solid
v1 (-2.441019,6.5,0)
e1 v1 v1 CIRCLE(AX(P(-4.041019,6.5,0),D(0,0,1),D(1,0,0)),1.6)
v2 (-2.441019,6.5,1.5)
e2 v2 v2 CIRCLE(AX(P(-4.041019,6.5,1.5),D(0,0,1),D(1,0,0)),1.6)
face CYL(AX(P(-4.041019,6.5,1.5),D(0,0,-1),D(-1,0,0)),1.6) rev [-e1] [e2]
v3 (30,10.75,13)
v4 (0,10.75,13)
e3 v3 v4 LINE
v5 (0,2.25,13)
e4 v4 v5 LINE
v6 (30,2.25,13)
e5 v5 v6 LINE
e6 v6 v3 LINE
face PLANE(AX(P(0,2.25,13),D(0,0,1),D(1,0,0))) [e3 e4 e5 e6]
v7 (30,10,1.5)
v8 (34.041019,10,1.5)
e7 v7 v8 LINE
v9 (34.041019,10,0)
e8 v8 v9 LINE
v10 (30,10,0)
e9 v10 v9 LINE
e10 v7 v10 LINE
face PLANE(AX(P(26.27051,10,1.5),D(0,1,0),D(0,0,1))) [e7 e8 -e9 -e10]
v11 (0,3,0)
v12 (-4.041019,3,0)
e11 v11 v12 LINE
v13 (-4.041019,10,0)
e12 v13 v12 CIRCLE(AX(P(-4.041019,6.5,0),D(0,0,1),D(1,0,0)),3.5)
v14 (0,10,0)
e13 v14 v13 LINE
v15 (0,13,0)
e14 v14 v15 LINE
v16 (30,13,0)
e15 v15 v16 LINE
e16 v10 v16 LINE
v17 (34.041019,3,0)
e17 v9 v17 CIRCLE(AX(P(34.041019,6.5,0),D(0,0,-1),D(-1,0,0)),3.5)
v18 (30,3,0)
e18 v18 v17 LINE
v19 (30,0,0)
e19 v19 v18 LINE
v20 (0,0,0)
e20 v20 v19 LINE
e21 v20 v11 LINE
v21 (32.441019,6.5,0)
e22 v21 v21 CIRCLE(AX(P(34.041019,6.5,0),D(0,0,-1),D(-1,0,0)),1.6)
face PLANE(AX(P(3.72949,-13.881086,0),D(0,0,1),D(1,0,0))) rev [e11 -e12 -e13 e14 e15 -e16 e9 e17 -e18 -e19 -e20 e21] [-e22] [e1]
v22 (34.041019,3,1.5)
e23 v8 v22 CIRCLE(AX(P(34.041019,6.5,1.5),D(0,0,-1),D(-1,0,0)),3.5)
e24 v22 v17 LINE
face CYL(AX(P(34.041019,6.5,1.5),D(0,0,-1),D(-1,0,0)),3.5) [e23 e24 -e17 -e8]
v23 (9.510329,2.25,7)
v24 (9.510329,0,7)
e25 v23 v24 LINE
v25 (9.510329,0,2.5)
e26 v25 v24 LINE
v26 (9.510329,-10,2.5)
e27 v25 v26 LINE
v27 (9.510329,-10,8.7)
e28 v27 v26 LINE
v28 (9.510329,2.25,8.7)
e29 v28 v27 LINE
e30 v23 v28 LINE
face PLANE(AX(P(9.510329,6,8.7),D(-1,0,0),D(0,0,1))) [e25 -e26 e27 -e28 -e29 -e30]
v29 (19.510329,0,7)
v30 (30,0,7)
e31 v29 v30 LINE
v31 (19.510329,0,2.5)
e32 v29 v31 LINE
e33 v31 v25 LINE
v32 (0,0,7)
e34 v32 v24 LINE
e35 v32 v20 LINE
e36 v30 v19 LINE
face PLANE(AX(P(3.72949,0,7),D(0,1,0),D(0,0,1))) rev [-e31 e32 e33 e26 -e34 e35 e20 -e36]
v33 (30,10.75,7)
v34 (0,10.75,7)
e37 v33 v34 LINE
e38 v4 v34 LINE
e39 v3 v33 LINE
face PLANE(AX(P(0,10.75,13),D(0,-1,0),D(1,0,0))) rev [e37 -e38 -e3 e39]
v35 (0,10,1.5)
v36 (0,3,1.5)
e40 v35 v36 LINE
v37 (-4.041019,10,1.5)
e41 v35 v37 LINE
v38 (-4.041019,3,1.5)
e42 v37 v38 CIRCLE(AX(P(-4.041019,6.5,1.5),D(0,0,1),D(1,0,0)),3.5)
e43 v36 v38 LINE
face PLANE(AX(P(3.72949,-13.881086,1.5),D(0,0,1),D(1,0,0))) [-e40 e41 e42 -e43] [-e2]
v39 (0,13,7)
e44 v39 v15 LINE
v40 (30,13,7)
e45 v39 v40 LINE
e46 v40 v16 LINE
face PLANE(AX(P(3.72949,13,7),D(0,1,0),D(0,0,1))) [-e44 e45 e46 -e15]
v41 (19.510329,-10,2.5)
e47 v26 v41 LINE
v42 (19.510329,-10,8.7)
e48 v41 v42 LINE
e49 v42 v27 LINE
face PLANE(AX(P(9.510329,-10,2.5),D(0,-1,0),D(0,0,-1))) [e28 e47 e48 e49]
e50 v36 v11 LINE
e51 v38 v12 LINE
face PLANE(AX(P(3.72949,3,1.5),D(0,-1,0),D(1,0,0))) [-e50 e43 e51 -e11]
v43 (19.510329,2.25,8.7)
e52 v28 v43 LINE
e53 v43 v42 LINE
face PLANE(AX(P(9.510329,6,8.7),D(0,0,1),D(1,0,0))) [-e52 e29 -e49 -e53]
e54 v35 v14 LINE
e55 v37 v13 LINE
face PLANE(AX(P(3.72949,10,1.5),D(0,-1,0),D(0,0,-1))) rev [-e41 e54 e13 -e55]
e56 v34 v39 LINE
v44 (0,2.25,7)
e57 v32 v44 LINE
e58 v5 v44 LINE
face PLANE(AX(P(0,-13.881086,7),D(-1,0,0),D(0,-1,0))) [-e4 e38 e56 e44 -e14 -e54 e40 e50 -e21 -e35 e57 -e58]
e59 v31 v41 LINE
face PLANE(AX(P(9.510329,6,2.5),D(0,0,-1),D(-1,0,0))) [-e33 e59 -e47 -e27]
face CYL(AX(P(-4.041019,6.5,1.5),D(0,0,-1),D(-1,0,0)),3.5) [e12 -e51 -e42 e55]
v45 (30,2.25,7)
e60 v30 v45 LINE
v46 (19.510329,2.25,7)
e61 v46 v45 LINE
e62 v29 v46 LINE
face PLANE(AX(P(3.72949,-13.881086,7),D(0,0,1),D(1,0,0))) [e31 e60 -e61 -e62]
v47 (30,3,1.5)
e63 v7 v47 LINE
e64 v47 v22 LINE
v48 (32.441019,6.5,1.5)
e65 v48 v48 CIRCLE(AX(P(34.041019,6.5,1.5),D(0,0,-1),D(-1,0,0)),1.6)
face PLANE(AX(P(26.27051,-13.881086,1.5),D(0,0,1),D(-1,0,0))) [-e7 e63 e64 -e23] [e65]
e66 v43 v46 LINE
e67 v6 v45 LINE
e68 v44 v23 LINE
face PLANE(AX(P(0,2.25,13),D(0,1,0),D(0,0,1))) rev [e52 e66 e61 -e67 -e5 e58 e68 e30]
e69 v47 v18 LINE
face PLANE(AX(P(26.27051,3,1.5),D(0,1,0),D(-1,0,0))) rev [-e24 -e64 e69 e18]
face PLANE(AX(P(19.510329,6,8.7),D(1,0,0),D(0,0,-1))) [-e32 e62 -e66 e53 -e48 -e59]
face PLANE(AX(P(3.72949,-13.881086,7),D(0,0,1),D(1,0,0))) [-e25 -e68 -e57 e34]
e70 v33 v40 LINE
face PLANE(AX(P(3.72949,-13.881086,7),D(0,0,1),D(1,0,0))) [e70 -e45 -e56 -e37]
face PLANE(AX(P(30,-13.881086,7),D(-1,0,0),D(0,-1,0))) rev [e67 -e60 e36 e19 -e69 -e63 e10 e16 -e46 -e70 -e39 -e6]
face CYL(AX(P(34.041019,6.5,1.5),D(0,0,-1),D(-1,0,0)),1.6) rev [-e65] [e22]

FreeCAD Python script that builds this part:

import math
import FreeCAD as App
import Part
import Sketcher
from FreeCAD import Vector

doc = App.newDocument("Part")
params = doc.addObject("Spreadsheet::Sheet", "Params")
for row, (alias, value) in enumerate([
    ("sketch1_width", "15 mm"),
    ("sketch1_height", "13 mm"),
    ("pad1_length", "7 mm"),
    ("sketch2_diameter", "3.2 mm"),
    ("sketch2_radius", "3.5 mm"),
    ("pad2_length", "1.5 mm"),
    ("sketch3_width", "30 mm"),
    ("sketch3_height", "8.5 mm"),
    ("pad3_length", "6 mm"),
    ("sketch4_width", "10 mm"),
    ("sketch4_height", "6.2 mm"),
    ("pad4_length", "10 mm"),
    ("pad4_length2", "6 mm"),
], start=1):
    params.set(f"A{row}", alias)
    params.set(f"B{row}", "=" + value)
    params.setAlias(f"B{row}", alias)

body = doc.addObject("PartDesign::Body", "Body")

sketch1 = body.newObject("Sketcher::SketchObject", "Sketch")
sketch1.AttachmentSupport = (doc.getObject("XY_Plane"), [""])
sketch1.MapMode = "FlatFace"
sketch1.addGeometry([
    Part.LineSegment(Vector(0, 0, 0), Vector(15, 0, 0)),
    Part.LineSegment(Vector(15, 0, 0), Vector(15, 13, 0)),
    Part.LineSegment(Vector(15, 13, 0), Vector(0, 13, 0)),
    Part.LineSegment(Vector(0, 13, 0), Vector(0, 0, 0)),
], False)
sketch1.addConstraint([
    Sketcher.Constraint("Coincident", 0, 2, 1, 1),
    Sketcher.Constraint("Coincident", 1, 2, 2, 1),
    Sketcher.Constraint("Coincident", 2, 2, 3, 1),
    Sketcher.Constraint("Coincident", 3, 2, 0, 1),
    Sketcher.Constraint("Horizontal", 0),
    Sketcher.Constraint("Vertical", 1),
    Sketcher.Constraint("Horizontal", 2),
    Sketcher.Constraint("Vertical", 3),
    Sketcher.Constraint("Coincident", 3, 2, -1, 1),
    Sketcher.Constraint("DistanceX", 0, 1, 0, 2, 15.0),
    Sketcher.Constraint("DistanceY", 1, 1, 1, 2, 13.0),
])
sketch1.setExpression("Constraints[9]", "Params.sketch1_width")
sketch1.setExpression("Constraints[10]", "Params.sketch1_height")
pad1 = body.newObject("PartDesign::Pad", "Pad")
pad1.Profile = sketch1
pad1.setExpression("Length", "Params.pad1_length")

sketch2 = body.newObject("Sketcher::SketchObject", "Sketch001")
sketch2.AttachmentSupport = (doc.getObject("XY_Plane"), [""])
sketch2.MapMode = "FlatFace"
sketch2.addGeometry([
    Part.LineSegment(Vector(0, 10, 0), Vector(-4.041019, 10, 0)),
    Part.ArcOfCircle(Part.Circle(Vector(-4.041019, 6.5, 0), Vector(0, 0, 1), 3.5), math.radians(90), math.radians(270)),
    Part.LineSegment(Vector(-4.041019, 3, 0), Vector(0, 3, 0)),
    Part.LineSegment(Vector(0, 3, 0), Vector(0, 10, 0)),
    Part.Circle(Vector(-4.041019, 6.5, 0), Vector(0, 0, 1), 1.6),
], False)
sketch2.addConstraint([
    Sketcher.Constraint("Tangent", 0, 2, 1, 1),
    Sketcher.Constraint("Tangent", 1, 2, 2, 1),
    Sketcher.Constraint("Coincident", 2, 2, 3, 1),
    Sketcher.Constraint("Coincident", 3, 2, 0, 1),
    Sketcher.Constraint("Horizontal", 0),
    Sketcher.Constraint("Horizontal", 2),
    Sketcher.Constraint("Vertical", 3),
    Sketcher.Constraint("Coincident", 4, 3, 1, 3),
    Sketcher.Constraint("PointOnObject", 2, 2, -2),
    Sketcher.Constraint("Diameter", 4, 3.2),
    Sketcher.Constraint("Radius", 1, 3.5),
    Sketcher.Constraint("DistanceY", -1, 1, 0, 2, 10.0),
    Sketcher.Constraint("DistanceX", 0, 2, 0, 1, 4.041019),
])
sketch2.setExpression("Constraints[9]", "Params.sketch2_diameter")
sketch2.setExpression("Constraints[10]", "Params.sketch2_radius")
pad2 = body.newObject("PartDesign::Pad", "Pad001")
pad2.Profile = sketch2
pad2.setExpression("Length", "Params.pad2_length")
doc.recompute()

datumplane = body.newObject("PartDesign::Plane", "DatumPlane")
datumplane.AttachmentSupport = (doc.getObject("YZ_Plane"), [""])
datumplane.MapMode = "FlatFace"
datumplane.AttachmentOffset = App.Placement(Vector(0, 0, 15), App.Rotation())
mirrored = body.newObject("PartDesign::Mirrored", "Mirrored")
mirrored.Originals = [pad1, pad2]
mirrored.MirrorPlane = (datumplane, [""])
body.Tip = mirrored

sketch3 = body.newObject("Sketcher::SketchObject", "Sketch002")
sketch3.AttachmentSupport = (doc.getObject("XY_Plane"), [""])
sketch3.MapMode = "FlatFace"
sketch3.AttachmentOffset = App.Placement(Vector(0, 0, 7), App.Rotation())
sketch3.addGeometry([
    Part.LineSegment(Vector(0, 10.75, 0), Vector(0, 2.25, 0)),
    Part.LineSegment(Vector(0, 2.25, 0), Vector(30, 2.25, 0)),
    Part.LineSegment(Vector(30, 2.25, 0), Vector(30, 10.75, 0)),
    Part.LineSegment(Vector(30, 10.75, 0), Vector(0, 10.75, 0)),
], False)
sketch3.addConstraint([
    Sketcher.Constraint("Coincident", 0, 2, 1, 1),
    Sketcher.Constraint("Coincident", 1, 2, 2, 1),
    Sketcher.Constraint("Coincident", 2, 2, 3, 1),
    Sketcher.Constraint("Coincident", 3, 2, 0, 1),
    Sketcher.Constraint("Vertical", 0),
    Sketcher.Constraint("Horizontal", 1),
    Sketcher.Constraint("Vertical", 2),
    Sketcher.Constraint("Horizontal", 3),
    Sketcher.Constraint("PointOnObject", 0, 2, -2),
    Sketcher.Constraint("DistanceX", 1, 1, 1, 2, 30.0),
    Sketcher.Constraint("DistanceY", 0, 2, 0, 1, 8.5),
    Sketcher.Constraint("DistanceY", -1, 1, 0, 2, 2.25),
])
sketch3.setExpression("Constraints[9]", "Params.sketch3_width")
sketch3.setExpression("Constraints[10]", "Params.sketch3_height")
pad3 = body.newObject("PartDesign::Pad", "Pad002")
pad3.Profile = sketch3
pad3.setExpression("Length", "Params.pad3_length")

sketch4 = body.newObject("Sketcher::SketchObject", "Sketch003")
sketch4.AttachmentSupport = (doc.getObject("XZ_Plane"), [""])
sketch4.MapMode = "FlatFace"
sketch4.addGeometry([
    Part.LineSegment(Vector(9.510329, 8.7, 0), Vector(9.510329, 2.5, 0)),
    Part.LineSegment(Vector(9.510329, 2.5, 0), Vector(19.510329, 2.5, 0)),
    Part.LineSegment(Vector(19.510329, 2.5, 0), Vector(19.510329, 8.7, 0)),
    Part.LineSegment(Vector(19.510329, 8.7, 0), Vector(9.510329, 8.7, 0)),
], False)
sketch4.addConstraint([
    Sketcher.Constraint("Coincident", 0, 2, 1, 1),
    Sketcher.Constraint("Coincident", 1, 2, 2, 1),
    Sketcher.Constraint("Coincident", 2, 2, 3, 1),
    Sketcher.Constraint("Coincident", 3, 2, 0, 1),
    Sketcher.Constraint("Vertical", 0),
    Sketcher.Constraint("Horizontal", 1),
    Sketcher.Constraint("Vertical", 2),
    Sketcher.Constraint("Horizontal", 3),
    Sketcher.Constraint("DistanceX", 1, 1, 1, 2, 10.0),
    Sketcher.Constraint("DistanceY", 0, 2, 0, 1, 6.2),
    Sketcher.Constraint("DistanceY", -1, 1, 0, 2, 2.5),
    Sketcher.Constraint("DistanceX", -1, 1, 0, 2, 9.510329),
])
sketch4.setExpression("Constraints[8]", "Params.sketch4_width")
sketch4.setExpression("Constraints[9]", "Params.sketch4_height")
pad4 = body.newObject("PartDesign::Pad", "Pad003")
pad4.Profile = sketch4
pad4.Type = "TwoLengths"
pad4.setExpression("Length", "Params.pad4_length")
pad4.setExpression("Length2", "Params.pad4_length2")

doc.recompute()
